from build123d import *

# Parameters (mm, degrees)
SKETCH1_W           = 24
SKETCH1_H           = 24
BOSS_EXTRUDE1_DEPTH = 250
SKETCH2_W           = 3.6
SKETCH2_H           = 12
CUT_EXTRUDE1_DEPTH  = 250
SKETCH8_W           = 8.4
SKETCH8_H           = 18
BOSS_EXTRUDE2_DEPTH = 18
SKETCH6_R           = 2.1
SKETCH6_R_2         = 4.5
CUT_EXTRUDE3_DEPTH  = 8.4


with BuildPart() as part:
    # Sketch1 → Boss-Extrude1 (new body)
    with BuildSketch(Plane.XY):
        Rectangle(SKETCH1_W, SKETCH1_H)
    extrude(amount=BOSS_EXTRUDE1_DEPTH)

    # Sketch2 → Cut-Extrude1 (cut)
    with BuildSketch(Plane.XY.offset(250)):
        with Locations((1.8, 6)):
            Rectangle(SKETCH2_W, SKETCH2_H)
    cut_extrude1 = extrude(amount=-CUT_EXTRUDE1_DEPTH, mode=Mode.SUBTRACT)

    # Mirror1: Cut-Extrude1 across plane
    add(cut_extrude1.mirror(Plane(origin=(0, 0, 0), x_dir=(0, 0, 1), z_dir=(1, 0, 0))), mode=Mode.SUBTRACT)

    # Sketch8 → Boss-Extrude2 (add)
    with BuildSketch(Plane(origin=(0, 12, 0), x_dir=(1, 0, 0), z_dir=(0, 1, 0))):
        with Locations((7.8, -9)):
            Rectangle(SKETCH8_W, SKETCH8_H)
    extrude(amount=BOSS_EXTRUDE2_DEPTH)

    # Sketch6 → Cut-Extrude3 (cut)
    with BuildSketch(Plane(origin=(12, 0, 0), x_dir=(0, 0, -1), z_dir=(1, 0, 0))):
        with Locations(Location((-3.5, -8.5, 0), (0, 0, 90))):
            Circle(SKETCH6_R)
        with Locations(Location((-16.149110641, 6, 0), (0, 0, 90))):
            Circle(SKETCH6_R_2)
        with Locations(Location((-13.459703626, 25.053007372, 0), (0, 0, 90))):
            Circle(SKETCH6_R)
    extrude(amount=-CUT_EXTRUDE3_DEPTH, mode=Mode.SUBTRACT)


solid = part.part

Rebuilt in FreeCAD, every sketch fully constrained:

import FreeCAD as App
import Part
import Sketcher

doc = App.newDocument("Part")
body = doc.addObject("PartDesign::Body", "Body")

sketch1 = body.newObject("Sketcher::SketchObject", "Sketch")
sketch1.AttachmentSupport = (doc.getObject("XY_Plane"), [""])
sketch1.MapMode = "FlatFace"
sketch1.addGeometry([
    Part.LineSegment(App.Vector(-12, 12, 0), App.Vector(-12, -12, 0)),
    Part.LineSegment(App.Vector(-12, -12, 0), App.Vector(12, -12, 0)),
    Part.LineSegment(App.Vector(12, -12, 0), App.Vector(12, 12, 0)),
    Part.LineSegment(App.Vector(12, 12, 0), App.Vector(-12, 12, 0)),
], False)
sketch1.addConstraint([
    Sketcher.Constraint("Coincident", 0, 2, 1, 1),
    Sketcher.Constraint("Coincident", 1, 2, 2, 1),
    Sketcher.Constraint("Coincident", 2, 2, 3, 1),
    Sketcher.Constraint("Coincident", 3, 2, 0, 1),
    Sketcher.Constraint("Vertical", 0),
    Sketcher.Constraint("Horizontal", 1),
    Sketcher.Constraint("Vertical", 2),
    Sketcher.Constraint("Horizontal", 3),
    Sketcher.Constraint("Symmetric", 0, 2, 2, 2, -1, 1),
    Sketcher.Constraint("Equal", 3, 0),
    Sketcher.Constraint("DistanceX", 1, 1, 1, 2, 24.0),
])
pad1 = body.newObject("PartDesign::Pad", "Pad")
pad1.Profile = sketch1
pad1.Length = 250

sketch2 = body.newObject("Sketcher::SketchObject", "Sketch001")
sketch2.AttachmentSupport = (doc.getObject("XY_Plane"), [""])
sketch2.MapMode = "FlatFace"
sketch2.AttachmentOffset = App.Placement(App.Vector(0, 0, 250), App.Rotation())
sketch2.addGeometry([
    Part.LineSegment(App.Vector(0, 12, 0), App.Vector(0, 0, 0)),
    Part.LineSegment(App.Vector(0, 0, 0), App.Vector(3.6, 0, 0)),
    Part.LineSegment(App.Vector(3.6, 0, 0), App.Vector(3.6, 12, 0)),
    Part.LineSegment(App.Vector(3.6, 12, 0), App.Vector(0, 12, 0)),
], False)
sketch2.addConstraint([
    Sketcher.Constraint("Coincident", 0, 2, 1, 1),
    Sketcher.Constraint("Coincident", 1, 2, 2, 1),
    Sketcher.Constraint("Coincident", 2, 2, 3, 1),
    Sketcher.Constraint("Coincident", 3, 2, 0, 1),
    Sketcher.Constraint("Vertical", 0),
    Sketcher.Constraint("Horizontal", 1),
    Sketcher.Constraint("Vertical", 2),
    Sketcher.Constraint("Horizontal", 3),
    Sketcher.Constraint("Coincident", 0, 2, -1, 1),
    Sketcher.Constraint("DistanceY", 0, 2, 0, 1, 12.0),
    Sketcher.Constraint("DistanceX", 1, 1, 1, 2, 3.6),
])
pocket1 = body.newObject("PartDesign::Pocket", "Pocket")
pocket1.Profile = sketch2
pocket1.Length = 250
doc.recompute()

mirrored = body.newObject("PartDesign::Mirrored", "Mirrored")
mirrored.Originals = [pocket1]
mirrored.MirrorPlane = (doc.getObject("YZ_Plane"), [""])
body.Tip = mirrored

sketch3 = body.newObject("Sketcher::SketchObject", "Sketch002")
sketch3.AttachmentSupport = (doc.getObject("XZ_Plane"), [""])
sketch3.MapMode = "FlatFace"
sketch3.AttachmentOffset = App.Placement(App.Vector(0, 0, -12), App.Rotation())
sketch3.addGeometry([
    Part.LineSegment(App.Vector(3.6, 0, 0), App.Vector(3.6, 18, 0)),
    Part.LineSegment(App.Vector(3.6, 18, 0), App.Vector(12, 18, 0)),
    Part.LineSegment(App.Vector(12, 18, 0), App.Vector(12, 0, 0)),
    Part.LineSegment(App.Vector(12, 0, 0), App.Vector(3.6, 0, 0)),
], False)
sketch3.addConstraint([
    Sketcher.Constraint("Coincident", 0, 2, 1, 1),
    Sketcher.Constraint("Coincident", 1, 2, 2, 1),
    Sketcher.Constraint("Coincident", 2, 2, 3, 1),
    Sketcher.Constraint("Coincident", 3, 2, 0, 1),
    Sketcher.Constraint("Vertical", 0),
    Sketcher.Constraint("Horizontal", 1),
    Sketcher.Constraint("Vertical", 2),
    Sketcher.Constraint("Horizontal", 3),
    Sketcher.Constraint("PointOnObject", 2, 2, -1),
    Sketcher.Constraint("DistanceY", 0, 1, 0, 2, 18.0),
    Sketcher.Constraint("DistanceX", 1, 1, 1, 2, 8.4),
    Sketcher.Constraint("DistanceX", -1, 1, 1, 2, 12.0),
])
pad2 = body.newObject("PartDesign::Pad", "Pad001")
pad2.Profile = sketch3
pad2.Length = 18
pad2.Reversed = True

sketch4 = body.newObject("Sketcher::SketchObject", "Sketch003")
sketch4.AttachmentSupport = (doc.getObject("YZ_Plane"), [""])
sketch4.MapMode = "FlatFace"
sketch4.AttachmentOffset = App.Placement(App.Vector(0, 0, 12), App.Rotation())
sketch4.addGeometry([
    Part.Circle(App.Vector(-8.5, 3.5, 0), App.Vector(0, 0, 1), 2.1),
    Part.Circle(App.Vector(6, 16.149111, 0), App.Vector(0, 0, 1), 4.5),
    Part.Circle(App.Vector(25.053007, 13.459704, 0), App.Vector(0, 0, 1), 2.1),
], False)
sketch4.addConstraint([
    Sketcher.Constraint("Equal", 0, 2),
    Sketcher.Constraint("Diameter", 1, 9.0),
    Sketcher.Constraint("Diameter", 0, 4.2),
    Sketcher.Constraint("DistanceX", -1, 1, 1, 3, 6.0),
    Sketcher.Constraint("DistanceX", 0, 3, -1, 1, 8.5),
    Sketcher.Constraint("DistanceY", -1, 1, 0, 3, 3.5),
    Sketcher.Constraint("DistanceY", -1, 1, 1, 3, 16.149111),
    Sketcher.Constraint("DistanceX", -1, 1, 2, 3, 25.053007),
    Sketcher.Constraint("DistanceY", -1, 1, 2, 3, 13.459704),
])
pocket2 = body.newObject("PartDesign::Pocket", "Pocket001")
pocket2.Profile = sketch4
pocket2.Length = 8.4

doc.recompute()
